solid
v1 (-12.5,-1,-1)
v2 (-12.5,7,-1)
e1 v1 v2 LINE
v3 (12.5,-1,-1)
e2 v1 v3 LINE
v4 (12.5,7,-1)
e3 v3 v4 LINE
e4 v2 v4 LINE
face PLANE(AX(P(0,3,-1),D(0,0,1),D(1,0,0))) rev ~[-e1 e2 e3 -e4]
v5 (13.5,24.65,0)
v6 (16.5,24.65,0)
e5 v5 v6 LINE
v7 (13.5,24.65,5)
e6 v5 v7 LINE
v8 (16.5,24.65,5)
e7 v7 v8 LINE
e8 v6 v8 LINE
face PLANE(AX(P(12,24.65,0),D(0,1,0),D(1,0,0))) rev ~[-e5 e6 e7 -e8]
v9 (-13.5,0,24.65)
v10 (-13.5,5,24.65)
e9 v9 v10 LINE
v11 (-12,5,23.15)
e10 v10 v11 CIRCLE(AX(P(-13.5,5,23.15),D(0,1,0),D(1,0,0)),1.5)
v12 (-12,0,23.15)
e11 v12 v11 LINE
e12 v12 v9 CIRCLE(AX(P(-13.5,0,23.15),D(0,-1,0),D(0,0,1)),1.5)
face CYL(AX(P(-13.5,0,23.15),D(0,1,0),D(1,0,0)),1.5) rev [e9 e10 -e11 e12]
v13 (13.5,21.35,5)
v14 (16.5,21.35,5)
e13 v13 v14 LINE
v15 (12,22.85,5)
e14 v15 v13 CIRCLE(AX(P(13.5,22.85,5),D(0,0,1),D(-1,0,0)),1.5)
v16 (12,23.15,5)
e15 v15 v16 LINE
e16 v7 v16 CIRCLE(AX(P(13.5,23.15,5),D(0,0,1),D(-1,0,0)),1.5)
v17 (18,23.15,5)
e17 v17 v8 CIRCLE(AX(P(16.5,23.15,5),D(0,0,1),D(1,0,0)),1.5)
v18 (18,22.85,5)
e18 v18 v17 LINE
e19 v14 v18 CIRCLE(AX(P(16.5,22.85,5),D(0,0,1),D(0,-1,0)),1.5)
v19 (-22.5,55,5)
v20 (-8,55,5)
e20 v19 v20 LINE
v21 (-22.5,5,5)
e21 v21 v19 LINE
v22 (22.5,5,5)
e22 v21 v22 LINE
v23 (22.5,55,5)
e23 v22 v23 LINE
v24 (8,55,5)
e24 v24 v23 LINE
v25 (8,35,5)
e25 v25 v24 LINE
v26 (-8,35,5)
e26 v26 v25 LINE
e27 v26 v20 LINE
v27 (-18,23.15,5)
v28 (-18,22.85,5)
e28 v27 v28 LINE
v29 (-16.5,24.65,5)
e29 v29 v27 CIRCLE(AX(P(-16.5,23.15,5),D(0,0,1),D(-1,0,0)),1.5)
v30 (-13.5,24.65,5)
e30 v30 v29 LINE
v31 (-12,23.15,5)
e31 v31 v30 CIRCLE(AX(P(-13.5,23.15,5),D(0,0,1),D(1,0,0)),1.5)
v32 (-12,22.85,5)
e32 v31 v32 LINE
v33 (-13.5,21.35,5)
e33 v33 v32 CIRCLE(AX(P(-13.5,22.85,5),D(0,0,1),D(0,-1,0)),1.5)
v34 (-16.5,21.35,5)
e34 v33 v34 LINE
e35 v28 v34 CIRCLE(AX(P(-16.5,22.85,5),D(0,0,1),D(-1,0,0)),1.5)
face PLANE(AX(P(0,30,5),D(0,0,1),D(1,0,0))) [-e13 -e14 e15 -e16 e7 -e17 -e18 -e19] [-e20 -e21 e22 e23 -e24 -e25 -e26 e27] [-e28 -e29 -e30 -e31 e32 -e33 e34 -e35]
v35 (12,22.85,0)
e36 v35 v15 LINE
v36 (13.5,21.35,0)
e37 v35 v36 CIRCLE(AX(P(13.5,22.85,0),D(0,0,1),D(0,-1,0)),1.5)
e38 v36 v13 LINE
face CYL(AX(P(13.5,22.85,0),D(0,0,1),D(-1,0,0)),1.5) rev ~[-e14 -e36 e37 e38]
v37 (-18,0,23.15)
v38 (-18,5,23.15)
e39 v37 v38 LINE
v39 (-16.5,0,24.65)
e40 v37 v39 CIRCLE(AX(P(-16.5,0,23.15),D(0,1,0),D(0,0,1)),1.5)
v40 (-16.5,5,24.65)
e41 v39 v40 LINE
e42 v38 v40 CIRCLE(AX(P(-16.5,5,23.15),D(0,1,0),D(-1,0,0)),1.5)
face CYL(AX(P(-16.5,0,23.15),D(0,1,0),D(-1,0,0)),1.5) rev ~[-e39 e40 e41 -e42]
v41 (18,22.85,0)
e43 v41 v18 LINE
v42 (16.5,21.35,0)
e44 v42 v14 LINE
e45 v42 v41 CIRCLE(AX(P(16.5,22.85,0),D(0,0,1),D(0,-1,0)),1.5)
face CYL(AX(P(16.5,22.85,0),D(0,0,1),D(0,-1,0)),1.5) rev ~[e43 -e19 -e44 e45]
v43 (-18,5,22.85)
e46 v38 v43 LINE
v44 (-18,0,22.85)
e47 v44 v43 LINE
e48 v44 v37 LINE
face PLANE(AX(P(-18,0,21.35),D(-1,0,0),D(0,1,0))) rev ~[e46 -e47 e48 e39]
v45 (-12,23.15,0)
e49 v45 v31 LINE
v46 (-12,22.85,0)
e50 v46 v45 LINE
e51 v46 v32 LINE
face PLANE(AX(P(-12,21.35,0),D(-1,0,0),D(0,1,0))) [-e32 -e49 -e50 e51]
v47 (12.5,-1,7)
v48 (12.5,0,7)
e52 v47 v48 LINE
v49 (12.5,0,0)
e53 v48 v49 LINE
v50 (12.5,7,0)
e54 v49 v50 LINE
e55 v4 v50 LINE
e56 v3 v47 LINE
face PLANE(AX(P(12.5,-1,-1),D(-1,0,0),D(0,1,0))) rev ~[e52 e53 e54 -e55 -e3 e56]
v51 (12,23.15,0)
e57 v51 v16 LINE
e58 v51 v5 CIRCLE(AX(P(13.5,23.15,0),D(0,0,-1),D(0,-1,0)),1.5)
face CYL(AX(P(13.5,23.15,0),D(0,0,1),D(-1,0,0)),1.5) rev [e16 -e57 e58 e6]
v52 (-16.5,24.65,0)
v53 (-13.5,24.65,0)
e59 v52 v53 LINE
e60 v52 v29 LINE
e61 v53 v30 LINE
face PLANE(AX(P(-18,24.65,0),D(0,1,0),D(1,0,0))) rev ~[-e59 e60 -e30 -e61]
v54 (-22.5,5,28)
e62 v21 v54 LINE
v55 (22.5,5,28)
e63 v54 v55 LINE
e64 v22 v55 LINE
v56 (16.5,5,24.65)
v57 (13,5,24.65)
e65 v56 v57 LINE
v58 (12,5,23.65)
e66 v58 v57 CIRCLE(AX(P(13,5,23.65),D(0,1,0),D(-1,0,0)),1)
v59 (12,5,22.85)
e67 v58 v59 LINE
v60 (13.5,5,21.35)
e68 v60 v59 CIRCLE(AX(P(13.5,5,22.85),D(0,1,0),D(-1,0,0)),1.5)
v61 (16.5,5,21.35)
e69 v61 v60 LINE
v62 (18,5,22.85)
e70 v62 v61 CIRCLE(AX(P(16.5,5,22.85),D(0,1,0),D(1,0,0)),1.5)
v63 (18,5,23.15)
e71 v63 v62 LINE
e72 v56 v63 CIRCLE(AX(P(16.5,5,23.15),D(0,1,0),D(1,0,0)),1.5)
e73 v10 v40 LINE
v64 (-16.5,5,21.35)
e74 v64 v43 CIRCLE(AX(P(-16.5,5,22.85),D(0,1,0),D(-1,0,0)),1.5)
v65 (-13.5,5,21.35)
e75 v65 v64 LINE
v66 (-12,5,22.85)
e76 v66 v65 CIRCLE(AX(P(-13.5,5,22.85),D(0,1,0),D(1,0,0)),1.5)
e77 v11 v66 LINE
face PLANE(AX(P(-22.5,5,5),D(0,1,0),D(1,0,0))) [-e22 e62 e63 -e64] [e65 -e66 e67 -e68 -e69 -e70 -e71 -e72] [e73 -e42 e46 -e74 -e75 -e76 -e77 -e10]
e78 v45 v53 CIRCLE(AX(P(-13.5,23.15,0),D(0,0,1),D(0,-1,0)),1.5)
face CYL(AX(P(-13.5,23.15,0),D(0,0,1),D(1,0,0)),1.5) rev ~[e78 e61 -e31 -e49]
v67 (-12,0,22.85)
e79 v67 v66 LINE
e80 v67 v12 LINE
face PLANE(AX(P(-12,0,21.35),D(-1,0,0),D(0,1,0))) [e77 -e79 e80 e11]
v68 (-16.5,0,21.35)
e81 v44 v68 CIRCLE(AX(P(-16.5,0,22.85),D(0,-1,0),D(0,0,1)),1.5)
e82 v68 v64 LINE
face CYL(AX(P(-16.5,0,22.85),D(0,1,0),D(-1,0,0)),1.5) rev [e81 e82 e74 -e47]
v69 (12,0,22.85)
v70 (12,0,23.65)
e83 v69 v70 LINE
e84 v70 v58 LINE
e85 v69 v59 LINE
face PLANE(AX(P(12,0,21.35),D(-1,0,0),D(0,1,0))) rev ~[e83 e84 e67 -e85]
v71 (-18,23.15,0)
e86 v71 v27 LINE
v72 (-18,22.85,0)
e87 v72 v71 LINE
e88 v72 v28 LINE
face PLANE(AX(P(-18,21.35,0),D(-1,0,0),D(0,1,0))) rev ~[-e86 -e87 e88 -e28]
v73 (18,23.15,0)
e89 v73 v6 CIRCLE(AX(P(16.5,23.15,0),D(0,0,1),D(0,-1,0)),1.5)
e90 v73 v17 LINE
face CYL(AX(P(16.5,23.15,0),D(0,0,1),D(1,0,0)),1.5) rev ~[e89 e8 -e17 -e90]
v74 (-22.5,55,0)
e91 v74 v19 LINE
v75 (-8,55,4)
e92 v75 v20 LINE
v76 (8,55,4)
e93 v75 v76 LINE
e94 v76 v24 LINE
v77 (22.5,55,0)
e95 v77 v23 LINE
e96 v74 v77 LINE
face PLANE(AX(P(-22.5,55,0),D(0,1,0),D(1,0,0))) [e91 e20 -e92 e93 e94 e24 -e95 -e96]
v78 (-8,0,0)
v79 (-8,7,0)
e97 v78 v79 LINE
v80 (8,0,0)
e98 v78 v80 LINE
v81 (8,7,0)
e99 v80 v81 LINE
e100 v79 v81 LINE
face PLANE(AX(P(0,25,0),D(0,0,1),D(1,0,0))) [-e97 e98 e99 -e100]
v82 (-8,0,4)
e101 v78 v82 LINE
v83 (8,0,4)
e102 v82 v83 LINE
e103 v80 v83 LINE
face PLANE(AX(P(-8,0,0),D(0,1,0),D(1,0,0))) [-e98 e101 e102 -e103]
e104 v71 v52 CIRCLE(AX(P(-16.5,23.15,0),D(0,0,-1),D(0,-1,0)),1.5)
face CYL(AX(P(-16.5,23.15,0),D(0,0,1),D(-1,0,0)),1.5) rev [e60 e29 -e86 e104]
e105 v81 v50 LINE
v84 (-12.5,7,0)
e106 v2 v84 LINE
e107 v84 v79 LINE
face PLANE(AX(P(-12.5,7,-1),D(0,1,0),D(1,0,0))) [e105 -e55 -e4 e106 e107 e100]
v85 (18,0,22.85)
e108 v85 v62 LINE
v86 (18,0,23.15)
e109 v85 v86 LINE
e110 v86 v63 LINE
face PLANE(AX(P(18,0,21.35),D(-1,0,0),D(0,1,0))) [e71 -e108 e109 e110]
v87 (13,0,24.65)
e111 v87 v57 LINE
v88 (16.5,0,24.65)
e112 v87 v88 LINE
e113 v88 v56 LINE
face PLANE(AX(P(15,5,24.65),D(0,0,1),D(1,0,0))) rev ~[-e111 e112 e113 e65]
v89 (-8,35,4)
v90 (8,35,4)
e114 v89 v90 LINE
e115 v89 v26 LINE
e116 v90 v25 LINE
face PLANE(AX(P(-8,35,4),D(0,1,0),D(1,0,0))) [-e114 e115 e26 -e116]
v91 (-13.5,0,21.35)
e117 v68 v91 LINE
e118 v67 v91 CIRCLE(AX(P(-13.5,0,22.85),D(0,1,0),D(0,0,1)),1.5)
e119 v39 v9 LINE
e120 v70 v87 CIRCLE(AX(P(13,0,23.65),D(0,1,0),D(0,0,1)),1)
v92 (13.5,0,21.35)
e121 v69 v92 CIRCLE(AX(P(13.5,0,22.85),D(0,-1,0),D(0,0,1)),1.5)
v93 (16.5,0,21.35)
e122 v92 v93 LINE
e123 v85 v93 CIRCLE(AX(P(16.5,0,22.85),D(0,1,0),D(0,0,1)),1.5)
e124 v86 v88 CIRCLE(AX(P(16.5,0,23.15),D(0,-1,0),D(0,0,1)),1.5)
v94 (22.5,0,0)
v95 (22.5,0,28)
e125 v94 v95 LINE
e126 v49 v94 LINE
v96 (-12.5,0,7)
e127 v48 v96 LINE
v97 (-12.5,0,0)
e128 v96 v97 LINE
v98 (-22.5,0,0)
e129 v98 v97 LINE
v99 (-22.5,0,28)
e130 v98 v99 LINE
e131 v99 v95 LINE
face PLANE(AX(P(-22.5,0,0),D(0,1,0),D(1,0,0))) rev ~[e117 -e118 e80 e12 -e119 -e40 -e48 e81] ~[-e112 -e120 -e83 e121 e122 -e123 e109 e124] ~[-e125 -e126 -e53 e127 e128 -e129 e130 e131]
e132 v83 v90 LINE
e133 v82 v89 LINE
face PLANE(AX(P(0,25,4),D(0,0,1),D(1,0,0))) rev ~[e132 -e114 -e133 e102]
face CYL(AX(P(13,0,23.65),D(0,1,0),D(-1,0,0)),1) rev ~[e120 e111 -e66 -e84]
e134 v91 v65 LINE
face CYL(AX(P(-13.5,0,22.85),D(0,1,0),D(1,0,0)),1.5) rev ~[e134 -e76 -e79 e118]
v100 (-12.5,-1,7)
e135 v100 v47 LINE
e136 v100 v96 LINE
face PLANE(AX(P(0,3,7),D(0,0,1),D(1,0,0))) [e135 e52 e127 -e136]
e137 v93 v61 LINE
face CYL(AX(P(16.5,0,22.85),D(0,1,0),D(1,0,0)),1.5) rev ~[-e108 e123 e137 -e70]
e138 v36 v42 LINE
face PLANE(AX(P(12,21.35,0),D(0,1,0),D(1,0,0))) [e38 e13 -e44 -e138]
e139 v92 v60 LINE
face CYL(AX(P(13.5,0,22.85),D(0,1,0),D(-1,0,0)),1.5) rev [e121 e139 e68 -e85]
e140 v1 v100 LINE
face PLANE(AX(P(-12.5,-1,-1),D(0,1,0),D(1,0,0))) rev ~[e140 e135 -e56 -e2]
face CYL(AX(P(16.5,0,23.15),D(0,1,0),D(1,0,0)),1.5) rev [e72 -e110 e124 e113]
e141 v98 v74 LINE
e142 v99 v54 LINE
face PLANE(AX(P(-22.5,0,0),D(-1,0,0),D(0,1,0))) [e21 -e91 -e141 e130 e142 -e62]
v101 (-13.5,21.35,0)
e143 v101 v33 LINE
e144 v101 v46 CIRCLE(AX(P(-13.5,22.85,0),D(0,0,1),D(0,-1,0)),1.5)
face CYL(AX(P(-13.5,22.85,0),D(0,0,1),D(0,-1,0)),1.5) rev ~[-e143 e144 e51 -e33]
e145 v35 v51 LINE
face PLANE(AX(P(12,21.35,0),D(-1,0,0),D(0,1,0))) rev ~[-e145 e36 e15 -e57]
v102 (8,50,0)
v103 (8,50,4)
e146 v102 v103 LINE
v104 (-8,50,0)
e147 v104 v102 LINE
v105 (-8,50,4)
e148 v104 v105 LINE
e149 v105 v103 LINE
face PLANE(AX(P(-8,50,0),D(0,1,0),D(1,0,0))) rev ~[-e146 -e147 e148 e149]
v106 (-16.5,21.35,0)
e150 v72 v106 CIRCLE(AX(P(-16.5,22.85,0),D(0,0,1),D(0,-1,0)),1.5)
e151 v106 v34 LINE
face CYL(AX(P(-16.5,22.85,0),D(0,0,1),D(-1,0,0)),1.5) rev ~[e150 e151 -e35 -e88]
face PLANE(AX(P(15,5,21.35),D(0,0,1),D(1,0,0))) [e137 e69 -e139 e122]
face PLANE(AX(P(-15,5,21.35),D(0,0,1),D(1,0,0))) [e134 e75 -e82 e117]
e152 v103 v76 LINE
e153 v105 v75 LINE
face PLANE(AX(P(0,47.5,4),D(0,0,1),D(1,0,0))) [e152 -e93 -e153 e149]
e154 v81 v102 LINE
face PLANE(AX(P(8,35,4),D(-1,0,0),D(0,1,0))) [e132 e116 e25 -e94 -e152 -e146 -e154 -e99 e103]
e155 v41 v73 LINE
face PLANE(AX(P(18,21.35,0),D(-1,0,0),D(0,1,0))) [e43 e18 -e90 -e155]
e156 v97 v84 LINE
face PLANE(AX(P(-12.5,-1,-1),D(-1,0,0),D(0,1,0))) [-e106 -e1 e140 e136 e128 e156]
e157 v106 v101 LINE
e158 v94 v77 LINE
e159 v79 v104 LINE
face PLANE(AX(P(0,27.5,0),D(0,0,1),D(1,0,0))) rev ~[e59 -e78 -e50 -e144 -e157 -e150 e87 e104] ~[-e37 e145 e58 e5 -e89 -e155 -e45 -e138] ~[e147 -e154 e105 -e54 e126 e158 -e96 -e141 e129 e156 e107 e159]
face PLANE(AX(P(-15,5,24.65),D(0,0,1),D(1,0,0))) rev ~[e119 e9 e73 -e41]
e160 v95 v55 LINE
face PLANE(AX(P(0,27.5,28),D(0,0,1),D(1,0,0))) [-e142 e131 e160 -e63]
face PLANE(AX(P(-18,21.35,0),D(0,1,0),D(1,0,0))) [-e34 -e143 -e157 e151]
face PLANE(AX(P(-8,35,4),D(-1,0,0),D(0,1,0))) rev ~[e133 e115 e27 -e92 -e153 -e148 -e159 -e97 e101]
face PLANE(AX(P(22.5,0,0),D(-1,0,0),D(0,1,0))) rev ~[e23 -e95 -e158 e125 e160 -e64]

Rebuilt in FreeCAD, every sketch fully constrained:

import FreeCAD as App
import Part
import Sketcher
from FreeCAD import Vector


def edges_at(feature, points):
    """Names of the edges that pass closest to the given points."""
    edges = feature.Shape.Edges
    near = lambda p: min(range(len(edges)), key=lambda i: edges[i].distToShape(Part.Vertex(*p))[0])
    return sorted({f"Edge{near(p) + 1}" for p in points})


def add_polygon(sketch, points):
    """Adds a closed chain of lines whose ends are joined by coincident constraints."""
    first, n = sketch.GeometryCount, len(points)
    for a, b in zip(points, points[1:] + points[:1]):
        sketch.addGeometry(Part.LineSegment(App.Vector(*a, 0), App.Vector(*b, 0)), False)
    for i in range(n):
        sketch.addConstraint(Sketcher.Constraint("Coincident", first + i, 2, first + (i + 1) % n, 1))

doc = App.newDocument("Part")
body = doc.addObject("PartDesign::Body", "Body")

sketch1 = body.newObject("Sketcher::SketchObject", "Sketch")
sketch1.AttachmentSupport = (doc.getObject("XY_Plane"), [""])
sketch1.MapMode = "FlatFace"
sketch1.AttachmentOffset = App.Placement(Vector(0, 0, 21.35), App.Rotation())
add_polygon(sketch1, [(-18, 10), (-18, 0), (-12, 0), (-12, 10)])
sketch1.addConstraint([
    Sketcher.Constraint("Vertical", 0),
    Sketcher.Constraint("Horizontal", 1),
    Sketcher.Constraint("Vertical", 2),
    Sketcher.Constraint("Horizontal", 3),
    Sketcher.Constraint("PointOnObject", 0, 2, -1),
    Sketcher.Constraint("DistanceX", 1, 1, 1, 2, 6.0),
    Sketcher.Constraint("DistanceY", 0, 2, 0, 1, 10.0),
    Sketcher.Constraint("DistanceX", 0, 2, -1, 1, 18.0),
])
pad1 = body.newObject("PartDesign::Pad", "Pad")
pad1.Profile = sketch1
pad1.Length = 3.3
doc.recompute()

fillet = body.newObject("PartDesign::Fillet", "Fillet")
fillet.Base = (pad1, edges_at(pad1, [
    (-18, 5, 24.65),
    (-18, 5, 21.35),
    (-12, 5, 24.65),
    (-12, 5, 21.35),
]))
fillet.Radius = 1.5
body2 = doc.addObject("PartDesign::Body", "Body001")

sketch2 = body2.newObject("Sketcher::SketchObject", "Sketch001")
sketch2.AttachmentSupport = (doc.getObject("XY_Plane001"), [""])
sketch2.MapMode = "FlatFace"
add_polygon(sketch2, [(12, 24.65), (12, 21.35), (18, 21.35), (18, 24.65)])
sketch2.addConstraint([
    Sketcher.Constraint("Vertical", 0),
    Sketcher.Constraint("Horizontal", 1),
    Sketcher.Constraint("Vertical", 2),
    Sketcher.Constraint("Horizontal", 3),
    Sketcher.Constraint("DistanceX", 1, 1, 1, 2, 6.0),
    Sketcher.Constraint("DistanceY", 0, 2, 0, 1, 3.3),
    Sketcher.Constraint("DistanceX", -1, 1, 0, 2, 12.0),
    Sketcher.Constraint("DistanceY", -1, 1, 0, 2, 21.35),
])
pad2 = body2.newObject("PartDesign::Pad", "Pad001")
pad2.Profile = sketch2
pad2.Length = 10
doc.recompute()

fillet2 = body2.newObject("PartDesign::Fillet", "Fillet001")
fillet2.Base = (pad2, edges_at(pad2, [
    (12, 21.35, 5),
    (12, 24.65, 5),
    (18, 21.35, 5),
    (18, 24.65, 5),
]))
fillet2.Radius = 1.5
body3 = doc.addObject("PartDesign::Body", "Body002")

sketch3 = body3.newObject("Sketcher::SketchObject", "Sketch002")
sketch3.AttachmentSupport = (doc.getObject("XY_Plane002"), [""])
sketch3.MapMode = "FlatFace"
sketch3.AttachmentOffset = App.Placement(Vector(0, 0, 21.35), App.Rotation())
add_polygon(sketch3, [(12, 10), (12, 0), (18, 0), (18, 10)])
sketch3.addConstraint([
    Sketcher.Constraint("Vertical", 0),
    Sketcher.Constraint("Horizontal", 1),
    Sketcher.Constraint("Vertical", 2),
    Sketcher.Constraint("Horizontal", 3),
    Sketcher.Constraint("PointOnObject", 0, 2, -1),
    Sketcher.Constraint("DistanceX", 1, 1, 1, 2, 6.0),
    Sketcher.Constraint("DistanceY", 0, 2, 0, 1, 10.0),
    Sketcher.Constraint("DistanceX", -1, 1, 0, 2, 12.0),
])
pad3 = body3.newObject("PartDesign::Pad", "Pad002")
pad3.Profile = sketch3
pad3.Length = 3.3
doc.recompute()

fillet3 = body3.newObject("PartDesign::Fillet", "Fillet002")
fillet3.Base = (pad3, edges_at(pad3, [(12, 5, 21.35), (18, 5, 24.65), (18, 5, 21.35)]))
fillet3.Radius = 1.5
doc.recompute()

fillet4 = body3.newObject("PartDesign::Fillet", "Fillet003")
fillet4.Base = (fillet3, edges_at(fillet3, [(12, 5, 24.65)]))
fillet4.Radius = 1
body4 = doc.addObject("PartDesign::Body", "Body003")

sketch4 = body4.newObject("Sketcher::SketchObject", "Sketch003")
sketch4.AttachmentSupport = (doc.getObject("XY_Plane003"), [""])
sketch4.MapMode = "FlatFace"
sketch4.AttachmentOffset = App.Placement(Vector(0, 0, 4), App.Rotation())
add_polygon(sketch4, [(-8, 60), (-8, 35), (8, 35), (8, 60)])
sketch4.addConstraint([
    Sketcher.Constraint("Vertical", 0),
    Sketcher.Constraint("Horizontal", 1),
    Sketcher.Constraint("Vertical", 2),
    Sketcher.Constraint("Horizontal", 3),
    Sketcher.Constraint("DistanceX", 1, 1, 1, 2, 16.0),
    Sketcher.Constraint("DistanceY", 0, 2, 0, 1, 25.0),
    Sketcher.Constraint("DistanceX", 0, 2, -1, 1, 8.0),
    Sketcher.Constraint("DistanceY", -1, 1, 0, 2, 35.0),
])
pad4 = body4.newObject("PartDesign::Pad", "Pad003")
pad4.Profile = sketch4
pad4.Length = 6
body5 = doc.addObject("PartDesign::Body", "Body004")

sketch5 = body5.newObject("Sketcher::SketchObject", "Sketch004")
sketch5.AttachmentSupport = (doc.getObject("XY_Plane004"), [""])
sketch5.MapMode = "FlatFace"
sketch5.AttachmentOffset = App.Placement(Vector(0, 0, 5), App.Rotation())
add_polygon(sketch5, [(-22.5, 55), (-22.5, 5), (22.5, 5), (22.5, 55)])
sketch5.addConstraint([
    Sketcher.Constraint("Vertical", 0),
    Sketcher.Constraint("Horizontal", 1),
    Sketcher.Constraint("Vertical", 2),
    Sketcher.Constraint("Horizontal", 3),
    Sketcher.Constraint("DistanceX", 1, 1, 1, 2, 45.0),
    Sketcher.Constraint("DistanceY", 0, 2, 0, 1, 50.0),
    Sketcher.Constraint("DistanceY", -1, 1, 0, 2, 5.0),
    Sketcher.Constraint("DistanceX", 0, 2, -1, 1, 22.5),
])
pad5 = body5.newObject("PartDesign::Pad", "Pad004")
pad5.Profile = sketch5
pad5.Length = 23
body6 = doc.addObject("PartDesign::Body", "Body005")

sketch6 = body6.newObject("Sketcher::SketchObject", "Sketch005")
sketch6.AttachmentSupport = (doc.getObject("XY_Plane005"), [""])
sketch6.MapMode = "FlatFace"
add_polygon(sketch6, [(-18, 24.65), (-18, 21.35), (-12, 21.35), (-12, 24.65)])
sketch6.addConstraint([
    Sketcher.Constraint("Vertical", 0),
    Sketcher.Constraint("Horizontal", 1),
    Sketcher.Constraint("Vertical", 2),
    Sketcher.Constraint("Horizontal", 3),
    Sketcher.Constraint("DistanceX", 1, 1, 1, 2, 6.0),
    Sketcher.Constraint("DistanceY", 0, 2, 0, 1, 3.3),
    Sketcher.Constraint("DistanceX", 0, 2, -1, 1, 18.0),
    Sketcher.Constraint("DistanceY", -1, 1, 0, 2, 21.35),
])
pad6 = body6.newObject("PartDesign::Pad", "Pad005")
pad6.Profile = sketch6
pad6.Length = 10
doc.recompute()

fillet5 = body6.newObject("PartDesign::Fillet", "Fillet004")
fillet5.Base = (pad6, edges_at(pad6, [
    (-18, 21.35, 5),
    (-18, 24.65, 5),
    (-12, 21.35, 5),
    (-12, 24.65, 5),
]))
fillet5.Radius = 1.5
body7 = doc.addObject("PartDesign::Body", "Body006")
body7.AllowCompound = True

sketch7 = body7.newObject("Sketcher::SketchObject", "Sketch006")
sketch7.AttachmentSupport = (doc.getObject("XY_Plane006"), [""])
sketch7.MapMode = "FlatFace"
add_polygon(sketch7, [(-8, 50), (-8, 0), (8, 0), (8, 50)])
sketch7.addConstraint([
    Sketcher.Constraint("Vertical", 0),
    Sketcher.Constraint("Horizontal", 1),
    Sketcher.Constraint("Vertical", 2),
    Sketcher.Constraint("Horizontal", 3),
    Sketcher.Constraint("Symmetric", 0, 2, 1, 2, -1, 1),
    Sketcher.Constraint("DistanceX", 1, 1, 1, 2, 16.0),
    Sketcher.Constraint("DistanceY", 0, 2, 0, 1, 50.0),
])
pad7 = body7.newObject("PartDesign::Pad", "Pad006")
pad7.Profile = sketch7
pad7.Length = 4
doc.recompute()

boolean = body7.newObject("PartDesign::Boolean", "Boolean")
boolean.Type = "Fuse"
boolean.addObjects([body])
doc.recompute()

boolean2 = body7.newObject("PartDesign::Boolean", "Boolean001")
boolean2.Type = "Fuse"
boolean2.addObjects([body2])
doc.recompute()

boolean3 = body7.newObject("PartDesign::Boolean", "Boolean002")
boolean3.Type = "Fuse"
boolean3.addObjects([body3])
doc.recompute()

boolean4 = body7.newObject("PartDesign::Boolean", "Boolean003")
boolean4.Type = "Fuse"
boolean4.addObjects([body4])
doc.recompute()

boolean5 = body7.newObject("PartDesign::Boolean", "Boolean004")
boolean5.Type = "Fuse"
boolean5.addObjects([body5])
doc.recompute()

boolean6 = body7.newObject("PartDesign::Boolean", "Boolean005")
boolean6.Type = "Fuse"
boolean6.addObjects([body6])
body8 = doc.addObject("PartDesign::Body", "Body007")

sketch8 = body8.newObject("Sketcher::SketchObject", "Sketch007")
sketch8.AttachmentSupport = (doc.getObject("XY_Plane007"), [""])
sketch8.MapMode = "FlatFace"
add_polygon(sketch8, [(-22.5, 55), (-22.5, 0), (22.5, 0), (22.5, 55)])
sketch8.addConstraint([
    Sketcher.Constraint("Vertical", 0),
    Sketcher.Constraint("Horizontal", 1),
    Sketcher.Constraint("Vertical", 2),
    Sketcher.Constraint("Horizontal", 3),
    Sketcher.Constraint("Symmetric", 0, 2, 1, 2, -1, 1),
    Sketcher.Constraint("DistanceX", 1, 1, 1, 2, 45.0),
    Sketcher.Constraint("DistanceY", 0, 2, 0, 1, 55.0),
])
pad8 = body8.newObject("PartDesign::Pad", "Pad007")
pad8.Profile = sketch8
pad8.Length = 28
body9 = doc.addObject("PartDesign::Body", "Body008")

sketch9 = body9.newObject("Sketcher::SketchObject", "Sketch008")
sketch9.AttachmentSupport = (doc.getObject("XY_Plane008"), [""])
sketch9.MapMode = "FlatFace"
sketch9.AttachmentOffset = App.Placement(Vector(0, 0, -1), App.Rotation())
add_polygon(sketch9, [(-12.5, 7), (-12.5, -1), (12.5, -1), (12.5, 7)])
sketch9.addConstraint([
    Sketcher.Constraint("Vertical", 0),
    Sketcher.Constraint("Horizontal", 1),
    Sketcher.Constraint("Vertical", 2),
    Sketcher.Constraint("Horizontal", 3),
    Sketcher.Constraint("DistanceX", 1, 1, 1, 2, 25.0),
    Sketcher.Constraint("DistanceY", 0, 2, 0, 1, 8.0),
    Sketcher.Constraint("DistanceY", 0, 2, -1, 1, 1.0),
    Sketcher.Constraint("DistanceX", 0, 2, -1, 1, 12.5),
])
pad9 = body9.newObject("PartDesign::Pad", "Pad008")
pad9.Profile = sketch9
pad9.Length = 8
doc.recompute()

boolean7 = body9.newObject("PartDesign::Boolean", "Boolean006")
boolean7.Type = "Fuse"
boolean7.addObjects([body8])
doc.recompute()

boolean8 = body9.newObject("PartDesign::Boolean", "Boolean007")
boolean8.Type = "Cut"
boolean8.addObjects([body7])

doc.recompute()
